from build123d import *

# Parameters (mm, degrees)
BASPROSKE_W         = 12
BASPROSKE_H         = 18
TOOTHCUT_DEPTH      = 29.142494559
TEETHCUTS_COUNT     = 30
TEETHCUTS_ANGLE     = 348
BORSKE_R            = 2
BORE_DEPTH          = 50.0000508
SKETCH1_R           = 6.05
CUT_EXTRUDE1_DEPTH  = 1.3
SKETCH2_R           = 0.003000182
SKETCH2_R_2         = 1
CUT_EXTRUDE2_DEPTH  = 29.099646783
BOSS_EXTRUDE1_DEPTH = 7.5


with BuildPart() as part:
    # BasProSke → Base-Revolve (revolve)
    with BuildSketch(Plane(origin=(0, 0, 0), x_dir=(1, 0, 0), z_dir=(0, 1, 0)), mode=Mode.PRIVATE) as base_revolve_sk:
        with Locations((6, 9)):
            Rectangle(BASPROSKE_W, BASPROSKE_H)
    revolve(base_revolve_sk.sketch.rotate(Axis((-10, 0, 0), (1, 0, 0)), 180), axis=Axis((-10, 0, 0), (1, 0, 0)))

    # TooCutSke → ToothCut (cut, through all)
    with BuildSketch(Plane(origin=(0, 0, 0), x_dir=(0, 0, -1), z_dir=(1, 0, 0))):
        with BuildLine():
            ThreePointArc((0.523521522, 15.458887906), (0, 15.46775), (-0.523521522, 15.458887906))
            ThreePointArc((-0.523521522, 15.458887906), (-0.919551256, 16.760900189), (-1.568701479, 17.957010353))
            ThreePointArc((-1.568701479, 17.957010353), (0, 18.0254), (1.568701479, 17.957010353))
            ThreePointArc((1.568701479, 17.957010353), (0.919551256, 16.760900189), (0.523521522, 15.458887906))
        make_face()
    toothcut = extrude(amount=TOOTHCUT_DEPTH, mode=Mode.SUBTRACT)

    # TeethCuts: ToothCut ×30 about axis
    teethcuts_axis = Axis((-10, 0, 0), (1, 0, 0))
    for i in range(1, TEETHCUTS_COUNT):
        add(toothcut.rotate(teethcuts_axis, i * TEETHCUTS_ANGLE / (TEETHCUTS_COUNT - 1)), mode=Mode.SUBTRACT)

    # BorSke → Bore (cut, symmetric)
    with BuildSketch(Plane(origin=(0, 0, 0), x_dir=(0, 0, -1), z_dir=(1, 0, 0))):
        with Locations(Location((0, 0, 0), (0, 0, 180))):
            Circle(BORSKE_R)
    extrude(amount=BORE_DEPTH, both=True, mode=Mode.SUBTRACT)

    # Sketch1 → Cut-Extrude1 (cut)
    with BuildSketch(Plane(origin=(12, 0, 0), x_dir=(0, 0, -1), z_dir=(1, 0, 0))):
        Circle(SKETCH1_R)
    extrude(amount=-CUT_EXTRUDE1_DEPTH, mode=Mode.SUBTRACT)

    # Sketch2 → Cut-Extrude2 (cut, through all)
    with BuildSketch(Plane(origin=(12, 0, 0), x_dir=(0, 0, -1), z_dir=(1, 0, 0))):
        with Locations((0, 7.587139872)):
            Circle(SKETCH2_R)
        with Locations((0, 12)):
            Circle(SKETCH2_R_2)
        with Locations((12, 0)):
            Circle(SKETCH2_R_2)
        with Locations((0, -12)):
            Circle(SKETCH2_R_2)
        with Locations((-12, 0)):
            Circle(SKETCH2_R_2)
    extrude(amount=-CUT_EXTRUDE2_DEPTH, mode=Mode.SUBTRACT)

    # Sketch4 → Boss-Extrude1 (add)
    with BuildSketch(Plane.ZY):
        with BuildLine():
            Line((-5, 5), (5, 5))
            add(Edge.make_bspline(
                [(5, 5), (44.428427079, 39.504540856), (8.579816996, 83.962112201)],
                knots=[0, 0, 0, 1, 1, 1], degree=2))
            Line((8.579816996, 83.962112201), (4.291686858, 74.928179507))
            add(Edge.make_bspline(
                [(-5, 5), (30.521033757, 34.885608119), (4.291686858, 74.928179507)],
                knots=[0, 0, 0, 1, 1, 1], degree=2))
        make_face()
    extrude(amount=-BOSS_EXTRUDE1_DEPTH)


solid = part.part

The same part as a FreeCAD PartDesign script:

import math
import FreeCAD as App
import Part
import Sketcher

doc = App.newDocument("Part")
body = doc.addObject("PartDesign::Body", "Body")

sketch1 = body.newObject("Sketcher::SketchObject", "Sketch")
sketch1.AttachmentSupport = (doc.getObject("XZ_Plane"), [""])
sketch1.MapMode = "FlatFace"
sketch1.addGeometry([
    Part.LineSegment(App.Vector(0, -18, 0), App.Vector(0, 0, 0)),
    Part.LineSegment(App.Vector(0, 0, 0), App.Vector(12, 0, 0)),
    Part.LineSegment(App.Vector(12, 0, 0), App.Vector(12, -18, 0)),
    Part.LineSegment(App.Vector(12, -18, 0), App.Vector(0, -18, 0)),
], False)
sketch1.addConstraint([
    Sketcher.Constraint("Coincident", 0, 2, 1, 1),
    Sketcher.Constraint("Coincident", 1, 2, 2, 1),
    Sketcher.Constraint("Coincident", 2, 2, 3, 1),
    Sketcher.Constraint("Coincident", 3, 2, 0, 1),
    Sketcher.Constraint("Vertical", 0),
    Sketcher.Constraint("Horizontal", 1),
    Sketcher.Constraint("Vertical", 2),
    Sketcher.Constraint("Horizontal", 3),
    Sketcher.Constraint("Coincident", 0, 2, -1, 1),
    Sketcher.Constraint("DistanceX", 1, 1, 1, 2, 12.0),
    Sketcher.Constraint("DistanceY", 0, 1, 0, 2, 18.0),
])
revolution = body.newObject("PartDesign::Revolution", "Revolution")
revolution.Profile = sketch1
revolution.ReferenceAxis = (sketch1, ["H_Axis"])
revolution.Angle = 360

sketch2 = body.newObject("Sketcher::SketchObject", "Sketch001")
sketch2.AttachmentSupport = (doc.getObject("YZ_Plane"), [""])
sketch2.MapMode = "FlatFace"
sketch2.addGeometry([
    Part.ArcOfCircle(Part.Circle(App.Vector(0, 0, 0), App.Vector(0, 0, 1), 15.5), math.radians(-1.94), math.radians(1.94)),
    Part.ArcOfCircle(Part.Circle(App.Vector(14.2, -7.1, 0), App.Vector(0, 0, 1), 6.8), math.radians(56), math.radians(79)),
    Part.ArcOfCircle(Part.Circle(App.Vector(0, 0, 0), App.Vector(0, 0, 1), 18), math.radians(-4.99), math.radians(4.99)),
    Part.ArcOfCircle(Part.Circle(App.Vector(14.2, 7.1, 0), App.Vector(0, 0, 1), 6.8), math.radians(-79), math.radians(-56)),
], False)
sketch2.addConstraint([
    Sketcher.Constraint("Coincident", 0, 1, 1, 2),
    Sketcher.Constraint("Coincident", 1, 1, 2, 1),
    Sketcher.Constraint("Coincident", 2, 2, 3, 2),
    Sketcher.Constraint("Coincident", 3, 1, 0, 2),
    Sketcher.Constraint("Coincident", 0, 3, -1, 1),
    Sketcher.Constraint("Coincident", 2, 3, -1, 1),
    Sketcher.Constraint("Equal", 1, 3),
    Sketcher.Constraint("Symmetric", 1, 3, 3, 3, -1),
    Sketcher.Constraint("Radius", 1, 6.75),
    Sketcher.Constraint("Radius", 2, 18.0254),
    Sketcher.Constraint("Radius", 0, 15.467751),
    Sketcher.Constraint("DistanceY", 1, 1, -1, 1, 1.568701),
    Sketcher.Constraint("DistanceY", 0, 1, -1, 1, 0.523522),
])
pocket1 = body.newObject("PartDesign::Pocket", "Pocket")
pocket1.Profile = sketch2
pocket1.Type = "ThroughAll"
pocket1.Reversed = True
doc.recompute()

polarpattern = body.newObject("PartDesign::PolarPattern", "PolarPattern")
polarpattern.Originals = [pocket1]
polarpattern.Axis = (doc.getObject("X_Axis"), [""])
polarpattern.Angle = 360
polarpattern.Occurrences = 30
body.Tip = polarpattern

sketch3 = body.newObject("Sketcher::SketchObject", "Sketch002")
sketch3.AttachmentSupport = (doc.getObject("YZ_Plane"), [""])
sketch3.MapMode = "FlatFace"
sketch3.addGeometry(Part.Circle(App.Vector(0, 0, 0), App.Vector(0, 0, 1), 2), False)
sketch3.addConstraint([
    Sketcher.Constraint("Coincident", 0, 3, -1, 1),
    Sketcher.Constraint("Diameter", 0, 4.0),
])
pocket2 = body.newObject("PartDesign::Pocket", "Pocket001")
pocket2.Profile = sketch3
pocket2.Length = 100.000102
pocket2.Midplane = True

sketch4 = body.newObject("Sketcher::SketchObject", "Sketch003")
sketch4.AttachmentSupport = (doc.getObject("YZ_Plane"), [""])
sketch4.MapMode = "FlatFace"
sketch4.AttachmentOffset = App.Placement(App.Vector(0, 0, 12), App.Rotation())
sketch4.addGeometry(Part.Circle(App.Vector(0, 0, 0), App.Vector(0, 0, 1), 6), False)
sketch4.addConstraint([
    Sketcher.Constraint("Coincident", 0, 3, -1, 1),
    Sketcher.Constraint("Diameter", 0, 12.1),
])
pocket3 = body.newObject("PartDesign::Pocket", "Pocket002")
pocket3.Profile = sketch4
pocket3.Length = 1.3

sketch5 = body.newObject("Sketcher::SketchObject", "Sketch004")
sketch5.AttachmentSupport = (doc.getObject("YZ_Plane"), [""])
sketch5.MapMode = "FlatFace"
sketch5.AttachmentOffset = App.Placement(App.Vector(0, 0, 12), App.Rotation())
sketch5.addGeometry([
    Part.Circle(App.Vector(7.5871, 0, 0), App.Vector(0, 0, 1), 0.003),
    Part.Circle(App.Vector(12, 0, 0), App.Vector(0, 0, 1), 1),
    Part.Circle(App.Vector(0, -12, 0), App.Vector(0, 0, 1), 1),
    Part.Circle(App.Vector(-12, 0, 0), App.Vector(0, 0, 1), 1),
    Part.Circle(App.Vector(0, 12, 0), App.Vector(0, 0, 1), 1),
], False)
sketch5.addConstraint([
    Sketcher.Constraint("Equal", 1, 2),
    Sketcher.Constraint("Equal", 2, 3),
    Sketcher.Constraint("Equal", 3, 4),
    Sketcher.Constraint("Symmetric", 1, 3, 3, 3, -1, 1),
    Sketcher.Constraint("Symmetric", 2, 3, 4, 3, -1, 1),
    Sketcher.Constraint("PointOnObject", 0, 3, -1),
    Sketcher.Constraint("PointOnObject", 1, 3, -1),
    Sketcher.Constraint("PointOnObject", 2, 3, -2),
    Sketcher.Constraint("Diameter", 1, 2.0),
    Sketcher.Constraint("Diameter", 0, 0.006),
    Sketcher.Constraint("DistanceX", -1, 1, 1, 3, 12.0),
    Sketcher.Constraint("DistanceY", 2, 3, -1, 1, 12.0),
    Sketcher.Constraint("DistanceX", -1, 1, 0, 3, 7.58714),
])
pocket4 = body.newObject("PartDesign::Pocket", "Pocket003")
pocket4.Profile = sketch5
pocket4.Type = "ThroughAll"

sketch6 = body.newObject("Sketcher::SketchObject", "Sketch005")
sketch6.AttachmentSupport = (doc.getObject("YZ_Plane"), [""])
sketch6.MapMode = "FlatFace"
sketch6.addGeometry([
    Part.LineSegment(App.Vector(5, -5, 0), App.Vector(5, 5, 0)),
    Part.BSplineCurve([App.Vector(5, 5, 0), App.Vector(39.504541, 44.428427, 0), App.Vector(83.962112, 8.579817, 0)], [3, 3], [0, 1], False, 2, [1, 1, 1], False),
    Part.LineSegment(App.Vector(83.962112, 8.579817, 0), App.Vector(74.92818, 4.291687, 0)),
    Part.BSplineCurve([App.Vector(5, -5, 0), App.Vector(34.885608, 30.521034, 0), App.Vector(74.92818, 4.291687, 0)], [3, 3], [0, 1], False, 2, [1, 1, 1], False),
], False)
sketch6.addConstraint([
    Sketcher.Constraint("Block", 1),
    Sketcher.Constraint("Block", 3),
    Sketcher.Constraint("Coincident", 0, 2, 1, 1),
    Sketcher.Constraint("Coincident", 1, 2, 2, 1),
    Sketcher.Constraint("Coincident", 2, 2, 3, 2),
    Sketcher.Constraint("Coincident", 3, 1, 0, 1),
])
pad1 = body.newObject("PartDesign::Pad", "Pad")
pad1.Profile = sketch6
pad1.Length = 7.5

doc.recompute()
